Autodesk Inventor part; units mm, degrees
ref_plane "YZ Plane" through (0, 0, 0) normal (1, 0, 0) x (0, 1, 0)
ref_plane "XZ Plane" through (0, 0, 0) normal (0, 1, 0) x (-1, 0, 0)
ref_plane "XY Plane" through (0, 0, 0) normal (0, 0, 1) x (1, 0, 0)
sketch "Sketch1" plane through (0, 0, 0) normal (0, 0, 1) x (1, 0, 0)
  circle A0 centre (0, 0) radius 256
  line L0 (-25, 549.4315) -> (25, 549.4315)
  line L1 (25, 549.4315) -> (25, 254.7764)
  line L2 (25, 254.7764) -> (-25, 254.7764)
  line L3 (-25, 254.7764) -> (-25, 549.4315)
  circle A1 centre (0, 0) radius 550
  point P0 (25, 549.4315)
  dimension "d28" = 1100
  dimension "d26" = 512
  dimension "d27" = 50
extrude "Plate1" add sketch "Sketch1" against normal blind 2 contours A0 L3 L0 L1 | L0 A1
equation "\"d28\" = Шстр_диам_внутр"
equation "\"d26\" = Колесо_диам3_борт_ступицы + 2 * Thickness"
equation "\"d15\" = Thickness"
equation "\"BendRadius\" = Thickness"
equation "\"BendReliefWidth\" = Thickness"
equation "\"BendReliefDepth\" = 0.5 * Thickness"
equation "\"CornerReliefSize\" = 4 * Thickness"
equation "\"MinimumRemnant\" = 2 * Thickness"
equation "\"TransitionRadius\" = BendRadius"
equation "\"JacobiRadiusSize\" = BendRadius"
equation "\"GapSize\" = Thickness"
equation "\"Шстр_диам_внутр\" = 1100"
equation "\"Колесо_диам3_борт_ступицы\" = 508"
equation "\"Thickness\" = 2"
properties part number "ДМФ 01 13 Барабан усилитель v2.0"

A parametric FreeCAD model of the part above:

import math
import FreeCAD as App
import Part
import Sketcher

V = App.Vector

doc = App.newDocument("Part")
body = doc.addObject("PartDesign::Body", "Body")

# Sketch on XY plane
sketch1 = body.newObject("Sketcher::SketchObject", "Sketch")
sketch1.AttachmentSupport = (doc.getObject("XY_Plane"), [""])
sketch1.MapMode = "FlatFace"
sketch1.addGeometry([
    Part.ArcOfCircle(Part.Circle(V(0, 0, 0), V(0, 0, 1), 256), math.radians(84.4), math.radians(95.6)),
    Part.LineSegment(V(25, 255, 0), V(25, 549, 0)),
    Part.ArcOfCircle(Part.Circle(V(0, 0, 0), V(0, 0, 1), 550), math.radians(87.39), math.radians(92.61)),
    Part.LineSegment(V(-25, 549, 0), V(-25, 255, 0)),
], False)
sketch1.addConstraint([
    Sketcher.Constraint("Coincident", 0, 1, 1, 1),
    Sketcher.Constraint("Coincident", 1, 2, 2, 1),
    Sketcher.Constraint("Coincident", 2, 2, 3, 1),
    Sketcher.Constraint("Coincident", 3, 2, 0, 2),
    Sketcher.Constraint("Vertical", 1),
    Sketcher.Constraint("Vertical", 3),
    Sketcher.Constraint("Coincident", 0, 3, -1, 1),
    Sketcher.Constraint("Coincident", 2, 3, -1, 1),
    Sketcher.Constraint("Horizontal", 0, 1, 3, 2),
    Sketcher.Constraint("Radius", 0, 256.0),
    Sketcher.Constraint("Radius", 2, 550.0),
    Sketcher.Constraint("DistanceX", 3, 2, 0, 1, 50.0),
])
pad1 = body.newObject("PartDesign::Pad", "Pad")
pad1.Profile = sketch1
pad1.Length = 2
pad1.Reversed = True

doc.recompute()
